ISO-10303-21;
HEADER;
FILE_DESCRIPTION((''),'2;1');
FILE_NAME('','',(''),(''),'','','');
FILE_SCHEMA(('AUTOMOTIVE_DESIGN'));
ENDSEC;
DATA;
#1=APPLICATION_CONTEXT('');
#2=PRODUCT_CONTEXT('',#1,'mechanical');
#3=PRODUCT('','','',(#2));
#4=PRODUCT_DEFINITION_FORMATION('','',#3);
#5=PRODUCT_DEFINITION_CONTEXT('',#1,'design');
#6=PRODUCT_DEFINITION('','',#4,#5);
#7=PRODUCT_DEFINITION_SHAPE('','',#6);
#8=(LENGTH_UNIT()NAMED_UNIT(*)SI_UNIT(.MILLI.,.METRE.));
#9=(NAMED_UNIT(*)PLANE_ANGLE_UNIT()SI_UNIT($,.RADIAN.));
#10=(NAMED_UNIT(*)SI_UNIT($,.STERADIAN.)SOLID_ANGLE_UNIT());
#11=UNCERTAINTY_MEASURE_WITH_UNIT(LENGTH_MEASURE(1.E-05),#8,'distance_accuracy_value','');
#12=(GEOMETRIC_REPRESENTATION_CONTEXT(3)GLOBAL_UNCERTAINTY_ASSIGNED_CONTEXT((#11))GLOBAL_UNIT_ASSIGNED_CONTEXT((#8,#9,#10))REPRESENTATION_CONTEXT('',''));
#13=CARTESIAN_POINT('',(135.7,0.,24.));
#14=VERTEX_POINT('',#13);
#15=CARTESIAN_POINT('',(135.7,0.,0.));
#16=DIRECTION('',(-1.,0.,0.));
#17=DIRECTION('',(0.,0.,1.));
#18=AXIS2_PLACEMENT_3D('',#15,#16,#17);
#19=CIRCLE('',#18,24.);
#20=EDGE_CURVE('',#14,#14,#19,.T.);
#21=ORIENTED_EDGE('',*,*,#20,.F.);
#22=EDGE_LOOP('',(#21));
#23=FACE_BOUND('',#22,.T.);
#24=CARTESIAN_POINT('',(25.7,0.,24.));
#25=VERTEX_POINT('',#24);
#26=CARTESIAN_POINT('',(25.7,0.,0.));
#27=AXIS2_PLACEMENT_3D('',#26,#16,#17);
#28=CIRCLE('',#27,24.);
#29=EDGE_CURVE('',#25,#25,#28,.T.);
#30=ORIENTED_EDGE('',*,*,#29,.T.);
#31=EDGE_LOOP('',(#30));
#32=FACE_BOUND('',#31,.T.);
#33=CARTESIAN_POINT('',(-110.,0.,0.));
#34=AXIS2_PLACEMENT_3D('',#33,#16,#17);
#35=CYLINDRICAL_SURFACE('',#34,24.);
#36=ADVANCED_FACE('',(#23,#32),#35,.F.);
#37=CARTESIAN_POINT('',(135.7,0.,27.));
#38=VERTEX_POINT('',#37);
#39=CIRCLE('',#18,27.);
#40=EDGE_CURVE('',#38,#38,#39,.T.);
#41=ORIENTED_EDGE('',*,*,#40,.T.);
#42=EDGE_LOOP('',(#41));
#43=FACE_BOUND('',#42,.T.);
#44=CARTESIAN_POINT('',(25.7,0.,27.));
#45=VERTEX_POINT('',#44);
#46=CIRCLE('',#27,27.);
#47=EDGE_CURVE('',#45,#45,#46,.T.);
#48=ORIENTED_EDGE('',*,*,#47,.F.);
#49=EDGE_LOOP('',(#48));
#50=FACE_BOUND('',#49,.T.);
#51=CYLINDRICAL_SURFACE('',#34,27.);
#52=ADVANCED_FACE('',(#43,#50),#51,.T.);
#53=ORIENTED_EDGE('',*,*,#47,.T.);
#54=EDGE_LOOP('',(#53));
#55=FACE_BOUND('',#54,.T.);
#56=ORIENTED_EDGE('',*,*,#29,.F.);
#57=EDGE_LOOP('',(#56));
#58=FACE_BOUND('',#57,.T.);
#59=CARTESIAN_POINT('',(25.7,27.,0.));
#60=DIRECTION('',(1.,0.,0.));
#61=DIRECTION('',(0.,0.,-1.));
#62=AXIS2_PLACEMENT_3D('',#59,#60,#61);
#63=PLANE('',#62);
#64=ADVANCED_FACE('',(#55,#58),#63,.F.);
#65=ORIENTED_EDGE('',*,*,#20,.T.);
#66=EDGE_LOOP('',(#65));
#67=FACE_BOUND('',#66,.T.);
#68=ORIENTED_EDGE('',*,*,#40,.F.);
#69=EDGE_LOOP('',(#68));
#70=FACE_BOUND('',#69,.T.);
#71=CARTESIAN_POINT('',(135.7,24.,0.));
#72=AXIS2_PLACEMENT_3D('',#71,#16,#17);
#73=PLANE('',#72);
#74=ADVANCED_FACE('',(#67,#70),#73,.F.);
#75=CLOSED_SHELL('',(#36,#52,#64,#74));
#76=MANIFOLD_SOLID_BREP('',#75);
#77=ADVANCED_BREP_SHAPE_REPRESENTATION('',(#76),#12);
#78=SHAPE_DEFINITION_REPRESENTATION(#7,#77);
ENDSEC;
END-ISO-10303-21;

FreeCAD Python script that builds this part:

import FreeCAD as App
import Part
import Sketcher

V = App.Vector
Q = App.Units.Quantity

doc = App.newDocument("Part")
params = doc.addObject("Spreadsheet::Sheet", "Params")
for row, (alias, value) in enumerate([
    ("sketch1_width", "110 mm"),
    ("sketch1_height", "3 mm"),
    ("revolution_angle", "360 deg"),
], start=1):
    params.set(f"A{row}", alias)
    params.set(f"B{row}", "=" + value)
    params.setAlias(f"B{row}", alias)

body = doc.addObject("PartDesign::Body", "Body")

sketch1 = body.newObject("Sketcher::SketchObject", "Sketch")
sketch1.AttachmentSupport = (doc.getObject("XY_Plane"), [""])
sketch1.MapMode = "FlatFace"
sketch1.addGeometry(Part.LineSegment(V(25.7, 27, 0), V(25.7, 24, 0)), False)
sketch1.addGeometry(Part.LineSegment(V(25.7, 24, 0), V(135.7, 24, 0)), False)
sketch1.addGeometry(Part.LineSegment(V(135.7, 24, 0), V(135.7, 27, 0)), False)
sketch1.addGeometry(Part.LineSegment(V(135.7, 27, 0), V(25.7, 27, 0)), False)
sketch1.addConstraint(Sketcher.Constraint("Coincident", 0, 2, 1, 1))
sketch1.addConstraint(Sketcher.Constraint("Coincident", 1, 2, 2, 1))
sketch1.addConstraint(Sketcher.Constraint("Coincident", 2, 2, 3, 1))
sketch1.addConstraint(Sketcher.Constraint("Coincident", 3, 2, 0, 1))
sketch1.addConstraint(Sketcher.Constraint("Vertical", 0))
sketch1.addConstraint(Sketcher.Constraint("Horizontal", 1))
sketch1.addConstraint(Sketcher.Constraint("Vertical", 2))
sketch1.addConstraint(Sketcher.Constraint("Horizontal", 3))
sketch1.addConstraint(Sketcher.Constraint("DistanceX", 1, 1, 1, 2, Q("110 mm")))
sketch1.addConstraint(Sketcher.Constraint("DistanceY", 0, 2, 0, 1, Q("3 mm")))
sketch1.addConstraint(Sketcher.Constraint("DistanceY", -1, 1, 0, 2, Q("24 mm")))
sketch1.addConstraint(Sketcher.Constraint("DistanceX", -1, 1, 0, 2, Q("25.7 mm")))
sketch1.setExpression("Constraints[8]", "Params.sketch1_width")
sketch1.setExpression("Constraints[9]", "Params.sketch1_height")
revolution = body.newObject("PartDesign::Revolution", "Revolution")
revolution.Profile = sketch1
revolution.ReferenceAxis = (sketch1, ["H_Axis"])
revolution.setExpression("Angle", "Params.revolution_angle")

doc.recompute()
